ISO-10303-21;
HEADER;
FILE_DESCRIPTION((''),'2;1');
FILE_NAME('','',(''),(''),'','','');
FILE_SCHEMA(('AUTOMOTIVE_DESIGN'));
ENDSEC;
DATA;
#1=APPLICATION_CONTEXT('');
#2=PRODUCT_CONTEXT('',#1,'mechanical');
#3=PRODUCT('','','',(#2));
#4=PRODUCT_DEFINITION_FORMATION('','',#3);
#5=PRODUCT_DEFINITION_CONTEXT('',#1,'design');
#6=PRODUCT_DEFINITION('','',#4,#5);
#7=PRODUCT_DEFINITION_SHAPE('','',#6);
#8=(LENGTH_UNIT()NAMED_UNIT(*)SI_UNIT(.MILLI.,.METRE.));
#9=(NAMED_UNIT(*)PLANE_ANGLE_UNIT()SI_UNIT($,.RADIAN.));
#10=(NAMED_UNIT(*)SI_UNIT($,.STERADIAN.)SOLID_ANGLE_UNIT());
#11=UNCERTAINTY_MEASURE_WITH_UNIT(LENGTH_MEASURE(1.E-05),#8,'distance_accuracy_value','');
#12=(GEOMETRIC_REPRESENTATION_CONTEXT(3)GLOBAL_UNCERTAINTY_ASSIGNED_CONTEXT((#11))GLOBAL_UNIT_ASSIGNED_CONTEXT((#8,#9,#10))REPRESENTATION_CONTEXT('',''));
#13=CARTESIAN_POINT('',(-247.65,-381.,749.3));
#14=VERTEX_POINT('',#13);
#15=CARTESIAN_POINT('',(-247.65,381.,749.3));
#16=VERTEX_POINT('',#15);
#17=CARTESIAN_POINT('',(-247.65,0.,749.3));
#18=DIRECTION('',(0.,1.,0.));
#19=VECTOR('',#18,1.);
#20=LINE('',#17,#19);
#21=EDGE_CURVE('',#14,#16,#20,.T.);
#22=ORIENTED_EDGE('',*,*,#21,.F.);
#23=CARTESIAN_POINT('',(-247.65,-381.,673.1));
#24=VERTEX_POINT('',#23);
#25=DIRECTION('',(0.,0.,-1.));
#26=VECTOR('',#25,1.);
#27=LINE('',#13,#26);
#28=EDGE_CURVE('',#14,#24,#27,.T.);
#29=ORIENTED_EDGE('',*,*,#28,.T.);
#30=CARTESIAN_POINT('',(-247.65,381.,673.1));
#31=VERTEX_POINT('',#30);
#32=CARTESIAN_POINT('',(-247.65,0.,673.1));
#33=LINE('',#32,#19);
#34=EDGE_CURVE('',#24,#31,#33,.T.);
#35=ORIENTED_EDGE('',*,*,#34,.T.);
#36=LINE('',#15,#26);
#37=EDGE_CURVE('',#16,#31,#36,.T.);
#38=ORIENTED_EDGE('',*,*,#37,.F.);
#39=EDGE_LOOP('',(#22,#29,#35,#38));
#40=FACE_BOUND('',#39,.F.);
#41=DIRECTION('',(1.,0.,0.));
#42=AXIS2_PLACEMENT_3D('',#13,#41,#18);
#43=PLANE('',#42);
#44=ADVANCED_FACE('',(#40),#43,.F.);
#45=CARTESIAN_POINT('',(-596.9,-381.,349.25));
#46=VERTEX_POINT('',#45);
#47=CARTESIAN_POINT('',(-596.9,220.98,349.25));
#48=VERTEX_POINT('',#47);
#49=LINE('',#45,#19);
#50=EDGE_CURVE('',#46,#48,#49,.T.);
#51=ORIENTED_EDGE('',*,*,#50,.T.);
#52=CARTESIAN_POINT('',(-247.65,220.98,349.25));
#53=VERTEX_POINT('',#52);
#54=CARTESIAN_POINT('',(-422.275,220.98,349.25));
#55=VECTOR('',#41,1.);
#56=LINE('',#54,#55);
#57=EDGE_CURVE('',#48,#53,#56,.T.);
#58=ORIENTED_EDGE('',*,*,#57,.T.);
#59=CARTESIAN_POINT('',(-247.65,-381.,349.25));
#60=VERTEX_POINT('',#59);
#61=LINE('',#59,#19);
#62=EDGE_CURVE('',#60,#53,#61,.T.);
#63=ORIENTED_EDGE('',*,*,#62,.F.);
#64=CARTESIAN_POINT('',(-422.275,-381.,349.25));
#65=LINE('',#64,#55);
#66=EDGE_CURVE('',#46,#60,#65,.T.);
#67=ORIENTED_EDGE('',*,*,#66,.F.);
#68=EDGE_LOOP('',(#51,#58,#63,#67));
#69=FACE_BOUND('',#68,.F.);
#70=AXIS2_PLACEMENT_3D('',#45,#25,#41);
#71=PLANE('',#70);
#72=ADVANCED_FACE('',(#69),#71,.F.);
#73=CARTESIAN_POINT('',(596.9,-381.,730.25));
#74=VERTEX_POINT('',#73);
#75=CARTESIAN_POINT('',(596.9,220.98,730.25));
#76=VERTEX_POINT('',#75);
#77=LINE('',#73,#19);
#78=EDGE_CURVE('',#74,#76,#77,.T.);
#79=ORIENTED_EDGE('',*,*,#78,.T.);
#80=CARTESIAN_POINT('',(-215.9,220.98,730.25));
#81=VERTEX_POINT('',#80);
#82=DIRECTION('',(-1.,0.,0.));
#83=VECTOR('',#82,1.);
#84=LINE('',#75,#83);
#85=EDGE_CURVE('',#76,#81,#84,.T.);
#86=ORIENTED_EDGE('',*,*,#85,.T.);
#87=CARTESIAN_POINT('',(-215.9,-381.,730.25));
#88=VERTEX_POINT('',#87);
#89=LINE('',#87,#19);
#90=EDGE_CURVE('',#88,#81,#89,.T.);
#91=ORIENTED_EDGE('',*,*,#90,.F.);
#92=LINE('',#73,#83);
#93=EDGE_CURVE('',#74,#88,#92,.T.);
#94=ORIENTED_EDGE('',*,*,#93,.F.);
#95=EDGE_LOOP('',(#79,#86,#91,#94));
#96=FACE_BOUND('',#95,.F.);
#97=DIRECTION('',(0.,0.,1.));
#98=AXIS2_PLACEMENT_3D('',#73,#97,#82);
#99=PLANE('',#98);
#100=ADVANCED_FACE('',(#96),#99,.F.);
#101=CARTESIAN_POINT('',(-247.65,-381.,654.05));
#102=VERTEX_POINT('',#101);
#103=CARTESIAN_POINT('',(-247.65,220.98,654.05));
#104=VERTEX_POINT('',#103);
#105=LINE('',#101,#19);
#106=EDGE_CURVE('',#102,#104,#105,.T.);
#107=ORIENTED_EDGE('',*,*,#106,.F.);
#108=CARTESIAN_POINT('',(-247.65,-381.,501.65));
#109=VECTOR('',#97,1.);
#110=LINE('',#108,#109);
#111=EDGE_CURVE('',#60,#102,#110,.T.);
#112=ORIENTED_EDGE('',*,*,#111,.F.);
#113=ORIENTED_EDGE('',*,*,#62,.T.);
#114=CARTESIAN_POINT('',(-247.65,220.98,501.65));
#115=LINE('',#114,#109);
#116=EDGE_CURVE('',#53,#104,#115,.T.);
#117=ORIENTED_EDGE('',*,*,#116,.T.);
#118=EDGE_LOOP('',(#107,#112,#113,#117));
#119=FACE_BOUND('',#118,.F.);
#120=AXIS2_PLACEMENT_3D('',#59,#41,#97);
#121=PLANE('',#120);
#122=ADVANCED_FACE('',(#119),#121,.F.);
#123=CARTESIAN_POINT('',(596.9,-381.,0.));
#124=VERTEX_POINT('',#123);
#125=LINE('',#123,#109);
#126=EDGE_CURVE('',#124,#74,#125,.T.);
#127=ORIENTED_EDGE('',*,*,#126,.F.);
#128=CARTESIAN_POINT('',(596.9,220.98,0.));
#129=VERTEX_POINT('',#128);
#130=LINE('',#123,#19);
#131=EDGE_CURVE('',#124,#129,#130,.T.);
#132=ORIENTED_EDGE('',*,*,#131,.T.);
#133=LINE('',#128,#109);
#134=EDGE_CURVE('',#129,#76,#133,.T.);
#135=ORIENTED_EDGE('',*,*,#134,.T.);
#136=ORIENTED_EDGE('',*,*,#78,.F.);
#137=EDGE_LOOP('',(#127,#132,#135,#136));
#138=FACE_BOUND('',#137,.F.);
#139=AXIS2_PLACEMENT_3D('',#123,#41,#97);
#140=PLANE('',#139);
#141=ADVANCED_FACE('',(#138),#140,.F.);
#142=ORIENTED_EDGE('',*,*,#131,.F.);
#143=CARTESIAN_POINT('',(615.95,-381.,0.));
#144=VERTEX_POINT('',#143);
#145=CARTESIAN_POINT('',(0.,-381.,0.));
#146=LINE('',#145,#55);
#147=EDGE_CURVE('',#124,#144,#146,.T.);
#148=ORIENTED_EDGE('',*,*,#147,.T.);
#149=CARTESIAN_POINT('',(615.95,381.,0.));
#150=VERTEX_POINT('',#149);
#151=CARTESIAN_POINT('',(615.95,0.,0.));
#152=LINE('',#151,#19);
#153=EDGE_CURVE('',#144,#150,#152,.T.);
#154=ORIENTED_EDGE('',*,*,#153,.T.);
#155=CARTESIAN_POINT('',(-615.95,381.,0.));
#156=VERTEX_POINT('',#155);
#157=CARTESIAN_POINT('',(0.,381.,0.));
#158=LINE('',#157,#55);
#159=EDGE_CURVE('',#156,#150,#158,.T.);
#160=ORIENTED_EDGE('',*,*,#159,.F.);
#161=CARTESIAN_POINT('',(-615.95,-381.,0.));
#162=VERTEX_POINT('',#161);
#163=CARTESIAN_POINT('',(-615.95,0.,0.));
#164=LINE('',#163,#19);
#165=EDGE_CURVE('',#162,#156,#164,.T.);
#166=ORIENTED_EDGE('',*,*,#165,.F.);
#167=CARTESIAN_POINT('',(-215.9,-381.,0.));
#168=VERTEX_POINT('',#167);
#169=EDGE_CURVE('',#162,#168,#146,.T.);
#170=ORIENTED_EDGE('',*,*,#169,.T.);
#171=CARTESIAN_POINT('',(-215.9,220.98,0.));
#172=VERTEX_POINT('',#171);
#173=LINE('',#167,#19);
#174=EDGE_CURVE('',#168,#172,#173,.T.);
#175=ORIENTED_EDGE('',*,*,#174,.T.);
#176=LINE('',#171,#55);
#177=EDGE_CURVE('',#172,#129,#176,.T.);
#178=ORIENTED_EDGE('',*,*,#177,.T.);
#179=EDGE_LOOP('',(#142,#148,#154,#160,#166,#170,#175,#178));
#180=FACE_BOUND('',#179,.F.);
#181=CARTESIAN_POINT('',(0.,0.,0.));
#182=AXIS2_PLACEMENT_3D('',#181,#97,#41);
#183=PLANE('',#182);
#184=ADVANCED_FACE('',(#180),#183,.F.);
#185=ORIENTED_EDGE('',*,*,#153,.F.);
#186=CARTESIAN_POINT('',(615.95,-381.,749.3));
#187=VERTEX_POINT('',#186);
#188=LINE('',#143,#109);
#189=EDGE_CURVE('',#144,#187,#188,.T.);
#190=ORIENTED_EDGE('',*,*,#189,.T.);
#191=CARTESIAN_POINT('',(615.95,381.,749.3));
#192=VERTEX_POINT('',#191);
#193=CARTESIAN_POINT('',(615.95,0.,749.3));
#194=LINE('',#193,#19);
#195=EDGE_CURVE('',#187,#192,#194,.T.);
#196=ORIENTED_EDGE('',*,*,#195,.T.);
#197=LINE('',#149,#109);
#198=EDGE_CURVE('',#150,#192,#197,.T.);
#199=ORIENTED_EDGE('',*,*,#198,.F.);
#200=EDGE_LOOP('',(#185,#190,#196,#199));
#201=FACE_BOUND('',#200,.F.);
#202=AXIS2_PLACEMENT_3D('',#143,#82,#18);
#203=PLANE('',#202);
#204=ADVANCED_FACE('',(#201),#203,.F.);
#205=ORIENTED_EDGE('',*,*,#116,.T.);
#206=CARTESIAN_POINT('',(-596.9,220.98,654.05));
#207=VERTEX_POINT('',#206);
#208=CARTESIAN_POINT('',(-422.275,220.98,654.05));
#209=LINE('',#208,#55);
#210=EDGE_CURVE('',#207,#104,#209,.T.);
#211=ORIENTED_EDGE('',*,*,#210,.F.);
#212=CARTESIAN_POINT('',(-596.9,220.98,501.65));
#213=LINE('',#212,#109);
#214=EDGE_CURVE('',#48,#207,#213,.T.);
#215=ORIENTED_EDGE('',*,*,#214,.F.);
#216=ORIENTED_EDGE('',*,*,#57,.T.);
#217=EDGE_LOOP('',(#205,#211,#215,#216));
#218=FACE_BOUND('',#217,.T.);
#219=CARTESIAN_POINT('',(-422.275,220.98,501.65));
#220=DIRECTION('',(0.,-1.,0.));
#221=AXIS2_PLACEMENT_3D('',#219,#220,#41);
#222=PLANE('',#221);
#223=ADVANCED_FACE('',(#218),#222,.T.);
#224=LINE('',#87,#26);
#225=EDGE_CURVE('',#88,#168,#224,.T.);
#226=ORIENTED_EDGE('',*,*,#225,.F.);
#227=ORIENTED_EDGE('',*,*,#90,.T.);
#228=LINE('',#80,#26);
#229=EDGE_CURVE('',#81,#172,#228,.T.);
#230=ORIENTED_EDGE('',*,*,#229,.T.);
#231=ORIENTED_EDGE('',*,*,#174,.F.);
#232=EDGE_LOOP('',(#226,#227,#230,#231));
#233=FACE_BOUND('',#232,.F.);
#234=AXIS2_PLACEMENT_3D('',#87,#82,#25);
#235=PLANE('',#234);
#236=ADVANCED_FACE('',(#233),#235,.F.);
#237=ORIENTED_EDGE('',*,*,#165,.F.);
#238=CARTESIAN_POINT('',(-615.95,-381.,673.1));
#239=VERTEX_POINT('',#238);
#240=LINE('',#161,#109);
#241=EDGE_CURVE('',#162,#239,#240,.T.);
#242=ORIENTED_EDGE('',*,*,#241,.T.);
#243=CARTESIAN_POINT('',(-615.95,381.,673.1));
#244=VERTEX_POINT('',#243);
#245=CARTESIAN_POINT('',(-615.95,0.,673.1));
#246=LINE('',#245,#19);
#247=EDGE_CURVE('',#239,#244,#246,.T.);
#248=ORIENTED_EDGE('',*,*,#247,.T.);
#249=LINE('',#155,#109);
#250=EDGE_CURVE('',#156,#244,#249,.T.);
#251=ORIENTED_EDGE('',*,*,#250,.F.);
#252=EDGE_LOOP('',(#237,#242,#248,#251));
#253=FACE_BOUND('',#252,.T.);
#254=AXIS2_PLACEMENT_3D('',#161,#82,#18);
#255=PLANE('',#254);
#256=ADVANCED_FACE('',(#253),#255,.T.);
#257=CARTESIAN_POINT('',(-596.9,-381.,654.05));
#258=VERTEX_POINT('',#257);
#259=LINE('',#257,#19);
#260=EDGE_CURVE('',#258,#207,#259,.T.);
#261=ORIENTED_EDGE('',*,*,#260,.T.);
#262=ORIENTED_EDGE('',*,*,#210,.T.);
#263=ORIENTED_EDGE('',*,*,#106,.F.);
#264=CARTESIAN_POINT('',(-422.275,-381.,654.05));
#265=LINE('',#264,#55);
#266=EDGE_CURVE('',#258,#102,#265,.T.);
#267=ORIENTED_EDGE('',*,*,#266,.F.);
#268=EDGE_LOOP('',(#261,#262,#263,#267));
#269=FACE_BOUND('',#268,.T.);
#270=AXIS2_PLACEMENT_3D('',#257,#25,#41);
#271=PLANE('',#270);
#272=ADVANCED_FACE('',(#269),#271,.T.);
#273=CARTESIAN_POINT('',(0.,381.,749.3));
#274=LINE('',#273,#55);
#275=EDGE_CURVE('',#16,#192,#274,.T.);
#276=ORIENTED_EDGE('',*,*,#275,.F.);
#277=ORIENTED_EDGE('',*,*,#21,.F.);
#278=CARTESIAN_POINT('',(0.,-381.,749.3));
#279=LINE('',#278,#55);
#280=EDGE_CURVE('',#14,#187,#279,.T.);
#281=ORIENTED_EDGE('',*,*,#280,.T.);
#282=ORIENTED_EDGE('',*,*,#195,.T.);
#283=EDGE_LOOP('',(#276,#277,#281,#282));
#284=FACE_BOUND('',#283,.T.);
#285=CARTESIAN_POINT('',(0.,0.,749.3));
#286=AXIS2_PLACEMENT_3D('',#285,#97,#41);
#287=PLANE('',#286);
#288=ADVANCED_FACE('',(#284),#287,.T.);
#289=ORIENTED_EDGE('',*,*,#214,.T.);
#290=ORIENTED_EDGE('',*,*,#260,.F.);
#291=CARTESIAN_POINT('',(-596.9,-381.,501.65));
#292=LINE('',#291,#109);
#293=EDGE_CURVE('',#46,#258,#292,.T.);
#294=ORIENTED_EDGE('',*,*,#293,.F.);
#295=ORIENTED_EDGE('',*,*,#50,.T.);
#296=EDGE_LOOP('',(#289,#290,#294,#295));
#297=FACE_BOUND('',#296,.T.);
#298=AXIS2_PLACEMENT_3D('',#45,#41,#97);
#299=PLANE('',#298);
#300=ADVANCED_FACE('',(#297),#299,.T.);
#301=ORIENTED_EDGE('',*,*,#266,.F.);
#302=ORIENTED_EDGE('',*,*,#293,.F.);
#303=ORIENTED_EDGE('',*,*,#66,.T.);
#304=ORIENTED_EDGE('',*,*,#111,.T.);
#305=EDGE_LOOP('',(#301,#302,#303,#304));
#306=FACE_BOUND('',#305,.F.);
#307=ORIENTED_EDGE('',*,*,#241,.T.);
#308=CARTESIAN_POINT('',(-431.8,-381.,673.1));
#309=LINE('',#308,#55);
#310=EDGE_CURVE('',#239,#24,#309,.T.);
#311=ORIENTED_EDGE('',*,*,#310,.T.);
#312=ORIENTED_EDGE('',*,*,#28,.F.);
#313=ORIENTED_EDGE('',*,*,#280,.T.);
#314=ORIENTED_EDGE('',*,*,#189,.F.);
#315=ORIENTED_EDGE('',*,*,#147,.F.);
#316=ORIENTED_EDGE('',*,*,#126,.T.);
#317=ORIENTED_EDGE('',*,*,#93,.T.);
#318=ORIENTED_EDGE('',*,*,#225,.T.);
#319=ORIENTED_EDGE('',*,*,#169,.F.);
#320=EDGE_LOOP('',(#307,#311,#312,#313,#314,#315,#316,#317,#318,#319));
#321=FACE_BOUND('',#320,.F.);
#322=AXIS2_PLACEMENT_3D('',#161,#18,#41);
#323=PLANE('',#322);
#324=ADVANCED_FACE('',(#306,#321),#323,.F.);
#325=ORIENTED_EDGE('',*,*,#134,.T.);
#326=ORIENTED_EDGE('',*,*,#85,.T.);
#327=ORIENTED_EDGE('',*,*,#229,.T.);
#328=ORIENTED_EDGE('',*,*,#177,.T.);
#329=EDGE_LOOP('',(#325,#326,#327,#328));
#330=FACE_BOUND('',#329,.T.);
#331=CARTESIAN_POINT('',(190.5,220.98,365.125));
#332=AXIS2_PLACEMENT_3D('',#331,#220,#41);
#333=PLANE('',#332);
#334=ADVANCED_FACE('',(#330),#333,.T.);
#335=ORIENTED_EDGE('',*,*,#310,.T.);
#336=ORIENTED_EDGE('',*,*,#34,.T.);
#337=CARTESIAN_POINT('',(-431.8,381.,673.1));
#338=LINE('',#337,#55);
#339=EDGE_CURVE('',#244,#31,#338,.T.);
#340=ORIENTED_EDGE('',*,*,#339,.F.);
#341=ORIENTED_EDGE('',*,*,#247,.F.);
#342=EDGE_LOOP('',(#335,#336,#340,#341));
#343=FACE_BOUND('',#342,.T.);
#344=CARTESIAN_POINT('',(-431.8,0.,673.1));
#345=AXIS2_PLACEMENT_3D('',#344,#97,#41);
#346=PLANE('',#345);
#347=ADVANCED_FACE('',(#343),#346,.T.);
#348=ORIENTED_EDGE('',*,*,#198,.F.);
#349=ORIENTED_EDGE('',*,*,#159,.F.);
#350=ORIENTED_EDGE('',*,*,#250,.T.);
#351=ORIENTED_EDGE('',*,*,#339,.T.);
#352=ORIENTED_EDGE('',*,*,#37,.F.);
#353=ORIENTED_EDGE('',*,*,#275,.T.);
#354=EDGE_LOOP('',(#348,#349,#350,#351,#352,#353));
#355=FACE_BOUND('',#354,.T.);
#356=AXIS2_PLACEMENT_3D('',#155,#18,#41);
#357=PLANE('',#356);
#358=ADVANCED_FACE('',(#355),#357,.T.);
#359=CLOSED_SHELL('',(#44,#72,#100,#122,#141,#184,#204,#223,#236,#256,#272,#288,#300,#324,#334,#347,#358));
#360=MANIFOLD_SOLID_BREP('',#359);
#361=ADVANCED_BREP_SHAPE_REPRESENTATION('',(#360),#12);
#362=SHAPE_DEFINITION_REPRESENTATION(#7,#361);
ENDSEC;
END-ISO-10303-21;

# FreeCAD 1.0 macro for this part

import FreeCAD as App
import Part
import Sketcher
from FreeCAD import Vector
Q = App.Units.Quantity


def add_polygon(sketch, points):
    """Adds a closed chain of lines whose ends are joined by coincident constraints."""
    first, n = sketch.GeometryCount, len(points)
    for a, b in zip(points, points[1:] + points[:1]):
        sketch.addGeometry(Part.LineSegment(App.Vector(*a, 0), App.Vector(*b, 0)), False)
    for i in range(n):
        sketch.addConstraint(Sketcher.Constraint("Coincident", first + i, 2, first + (i + 1) % n, 1))

doc = App.newDocument("Part")
params = doc.addObject("Spreadsheet::Sheet", "Params")
for row, (alias, value) in enumerate([
    ("sketch1_height", "30 in"),
    ("sketch1_width", "48.5 in"),
    ("pad1_length", "29.5 in"),
    ("sketch2_height", "30 in"),
    ("sketch2_width", "14.5 in"),
    ("pocket1_length", "3 in"),
    ("sketch3_width", "32 in"),
    ("sketch3_height", "12 in"),
    ("sketch3_width2", "13.75 in"),
    ("sketch3_height2", "28.75 in"),
    ("pocket2_length", "23.7 in"),
], start=1):
    params.set(f"A{row}", alias)
    params.set(f"B{row}", "=" + value)
    params.setAlias(f"B{row}", alias)

body = doc.addObject("PartDesign::Body", "Body")

# Sketch on XY plane
sketch1 = body.newObject("Sketcher::SketchObject", "Sketch")
sketch1.AttachmentSupport = (doc.getObject("XY_Plane"), [""])
sketch1.MapMode = "FlatFace"
add_polygon(sketch1, [(-616, 381), (-616, -381), (616, -381), (616, 381)])  # lines 0-3
sketch1.addConstraint(Sketcher.Constraint("Vertical", 0))
sketch1.addConstraint(Sketcher.Constraint("Horizontal", 1))
sketch1.addConstraint(Sketcher.Constraint("Vertical", 2))
sketch1.addConstraint(Sketcher.Constraint("Horizontal", 3))
sketch1.addConstraint(Sketcher.Constraint("Symmetric", 0, 2, 2, 2, -1, 1))
sketch1.addConstraint(Sketcher.Constraint("DistanceY", 0, 2, 0, 1, Q("30 in")))
sketch1.addConstraint(Sketcher.Constraint("DistanceX", 1, 1, 1, 2, Q("48.5 in")))
sketch1.setExpression("Constraints[9]", "Params.sketch1_height")
sketch1.setExpression("Constraints[10]", "Params.sketch1_width")
pad1 = body.newObject("PartDesign::Pad", "Pad")
pad1.Profile = sketch1
pad1.setExpression("Length", "Params.pad1_length")

# Sketch on XY plane
sketch2 = body.newObject("Sketcher::SketchObject", "Sketch001")
sketch2.AttachmentSupport = (doc.getObject("XY_Plane"), [""])
sketch2.MapMode = "FlatFace"
sketch2.AttachmentOffset = App.Placement(Vector(0, 0, 29.5 * 25.4), App.Rotation())
add_polygon(sketch2, [(-616, 381), (-616, -381), (-248, -381), (-248, 381)])  # lines 0-3
sketch2.addConstraint(Sketcher.Constraint("Vertical", 0))
sketch2.addConstraint(Sketcher.Constraint("Horizontal", 1))
sketch2.addConstraint(Sketcher.Constraint("Vertical", 2))
sketch2.addConstraint(Sketcher.Constraint("Horizontal", 3))
sketch2.addConstraint(Sketcher.Constraint("DistanceY", 0, 2, 0, 1, Q("30 in")))
sketch2.addConstraint(Sketcher.Constraint("DistanceX", 1, 1, 1, 2, Q("14.5 in")))
sketch2.addConstraint(Sketcher.Constraint("DistanceY", 0, 2, -1, 1, Q("15 in")))
sketch2.addConstraint(Sketcher.Constraint("DistanceX", 0, 2, -1, 1, Q("24.25 in")))
sketch2.setExpression("Constraints[8]", "Params.sketch2_height")
sketch2.setExpression("Constraints[9]", "Params.sketch2_width")
pocket1 = body.newObject("PartDesign::Pocket", "Pocket")
pocket1.Profile = sketch2
pocket1.setExpression("Length", "Params.pocket1_length")

# Sketch on XZ plane
sketch3 = body.newObject("Sketcher::SketchObject", "Sketch002")
sketch3.AttachmentSupport = (doc.getObject("XZ_Plane"), [""])
sketch3.MapMode = "FlatFace"
sketch3.AttachmentOffset = App.Placement(Vector(0, 0, 15 * 25.4), App.Rotation())
add_polygon(sketch3, [(-216, 0), (597, 0), (597, 730), (-216, 730)])  # lines 0-3
add_polygon(sketch3, [(-597, 654), (-597, 349), (-248, 349), (-248, 654)])  # lines 4-7
sketch3.addConstraint(Sketcher.Constraint("Horizontal", 0))
sketch3.addConstraint(Sketcher.Constraint("Vertical", 1))
sketch3.addConstraint(Sketcher.Constraint("Horizontal", 2))
sketch3.addConstraint(Sketcher.Constraint("Vertical", 3))
sketch3.addConstraint(Sketcher.Constraint("Vertical", 4))
sketch3.addConstraint(Sketcher.Constraint("Horizontal", 5))
sketch3.addConstraint(Sketcher.Constraint("Vertical", 6))
sketch3.addConstraint(Sketcher.Constraint("Horizontal", 7))
sketch3.addConstraint(Sketcher.Constraint("PointOnObject", 0, 2, -1))
sketch3.addConstraint(Sketcher.Constraint("DistanceX", 0, 1, 0, 2, Q("32 in")))
sketch3.addConstraint(Sketcher.Constraint("DistanceY", 4, 2, 4, 1, Q("12 in")))
sketch3.addConstraint(Sketcher.Constraint("DistanceX", 4, 2, 3, 2, Q("15 in")))
sketch3.addConstraint(Sketcher.Constraint("DistanceY", 4, 2, 2, 2, Q("15 in")))
sketch3.addConstraint(Sketcher.Constraint("DistanceX", 5, 1, 5, 2, Q("13.75 in")))
sketch3.addConstraint(Sketcher.Constraint("DistanceY", 1, 1, 1, 2, Q("28.75 in")))
sketch3.addConstraint(Sketcher.Constraint("DistanceX", -1, 1, 0, 2, Q("23.5 in")))
sketch3.setExpression("Constraints[17]", "Params.sketch3_width")
sketch3.setExpression("Constraints[18]", "Params.sketch3_height")
sketch3.setExpression("Constraints[21]", "Params.sketch3_width2")
sketch3.setExpression("Constraints[22]", "Params.sketch3_height2")
pocket2 = body.newObject("PartDesign::Pocket", "Pocket001")
pocket2.Profile = sketch3
pocket2.setExpression("Length", "Params.pocket2_length")

doc.recompute()
